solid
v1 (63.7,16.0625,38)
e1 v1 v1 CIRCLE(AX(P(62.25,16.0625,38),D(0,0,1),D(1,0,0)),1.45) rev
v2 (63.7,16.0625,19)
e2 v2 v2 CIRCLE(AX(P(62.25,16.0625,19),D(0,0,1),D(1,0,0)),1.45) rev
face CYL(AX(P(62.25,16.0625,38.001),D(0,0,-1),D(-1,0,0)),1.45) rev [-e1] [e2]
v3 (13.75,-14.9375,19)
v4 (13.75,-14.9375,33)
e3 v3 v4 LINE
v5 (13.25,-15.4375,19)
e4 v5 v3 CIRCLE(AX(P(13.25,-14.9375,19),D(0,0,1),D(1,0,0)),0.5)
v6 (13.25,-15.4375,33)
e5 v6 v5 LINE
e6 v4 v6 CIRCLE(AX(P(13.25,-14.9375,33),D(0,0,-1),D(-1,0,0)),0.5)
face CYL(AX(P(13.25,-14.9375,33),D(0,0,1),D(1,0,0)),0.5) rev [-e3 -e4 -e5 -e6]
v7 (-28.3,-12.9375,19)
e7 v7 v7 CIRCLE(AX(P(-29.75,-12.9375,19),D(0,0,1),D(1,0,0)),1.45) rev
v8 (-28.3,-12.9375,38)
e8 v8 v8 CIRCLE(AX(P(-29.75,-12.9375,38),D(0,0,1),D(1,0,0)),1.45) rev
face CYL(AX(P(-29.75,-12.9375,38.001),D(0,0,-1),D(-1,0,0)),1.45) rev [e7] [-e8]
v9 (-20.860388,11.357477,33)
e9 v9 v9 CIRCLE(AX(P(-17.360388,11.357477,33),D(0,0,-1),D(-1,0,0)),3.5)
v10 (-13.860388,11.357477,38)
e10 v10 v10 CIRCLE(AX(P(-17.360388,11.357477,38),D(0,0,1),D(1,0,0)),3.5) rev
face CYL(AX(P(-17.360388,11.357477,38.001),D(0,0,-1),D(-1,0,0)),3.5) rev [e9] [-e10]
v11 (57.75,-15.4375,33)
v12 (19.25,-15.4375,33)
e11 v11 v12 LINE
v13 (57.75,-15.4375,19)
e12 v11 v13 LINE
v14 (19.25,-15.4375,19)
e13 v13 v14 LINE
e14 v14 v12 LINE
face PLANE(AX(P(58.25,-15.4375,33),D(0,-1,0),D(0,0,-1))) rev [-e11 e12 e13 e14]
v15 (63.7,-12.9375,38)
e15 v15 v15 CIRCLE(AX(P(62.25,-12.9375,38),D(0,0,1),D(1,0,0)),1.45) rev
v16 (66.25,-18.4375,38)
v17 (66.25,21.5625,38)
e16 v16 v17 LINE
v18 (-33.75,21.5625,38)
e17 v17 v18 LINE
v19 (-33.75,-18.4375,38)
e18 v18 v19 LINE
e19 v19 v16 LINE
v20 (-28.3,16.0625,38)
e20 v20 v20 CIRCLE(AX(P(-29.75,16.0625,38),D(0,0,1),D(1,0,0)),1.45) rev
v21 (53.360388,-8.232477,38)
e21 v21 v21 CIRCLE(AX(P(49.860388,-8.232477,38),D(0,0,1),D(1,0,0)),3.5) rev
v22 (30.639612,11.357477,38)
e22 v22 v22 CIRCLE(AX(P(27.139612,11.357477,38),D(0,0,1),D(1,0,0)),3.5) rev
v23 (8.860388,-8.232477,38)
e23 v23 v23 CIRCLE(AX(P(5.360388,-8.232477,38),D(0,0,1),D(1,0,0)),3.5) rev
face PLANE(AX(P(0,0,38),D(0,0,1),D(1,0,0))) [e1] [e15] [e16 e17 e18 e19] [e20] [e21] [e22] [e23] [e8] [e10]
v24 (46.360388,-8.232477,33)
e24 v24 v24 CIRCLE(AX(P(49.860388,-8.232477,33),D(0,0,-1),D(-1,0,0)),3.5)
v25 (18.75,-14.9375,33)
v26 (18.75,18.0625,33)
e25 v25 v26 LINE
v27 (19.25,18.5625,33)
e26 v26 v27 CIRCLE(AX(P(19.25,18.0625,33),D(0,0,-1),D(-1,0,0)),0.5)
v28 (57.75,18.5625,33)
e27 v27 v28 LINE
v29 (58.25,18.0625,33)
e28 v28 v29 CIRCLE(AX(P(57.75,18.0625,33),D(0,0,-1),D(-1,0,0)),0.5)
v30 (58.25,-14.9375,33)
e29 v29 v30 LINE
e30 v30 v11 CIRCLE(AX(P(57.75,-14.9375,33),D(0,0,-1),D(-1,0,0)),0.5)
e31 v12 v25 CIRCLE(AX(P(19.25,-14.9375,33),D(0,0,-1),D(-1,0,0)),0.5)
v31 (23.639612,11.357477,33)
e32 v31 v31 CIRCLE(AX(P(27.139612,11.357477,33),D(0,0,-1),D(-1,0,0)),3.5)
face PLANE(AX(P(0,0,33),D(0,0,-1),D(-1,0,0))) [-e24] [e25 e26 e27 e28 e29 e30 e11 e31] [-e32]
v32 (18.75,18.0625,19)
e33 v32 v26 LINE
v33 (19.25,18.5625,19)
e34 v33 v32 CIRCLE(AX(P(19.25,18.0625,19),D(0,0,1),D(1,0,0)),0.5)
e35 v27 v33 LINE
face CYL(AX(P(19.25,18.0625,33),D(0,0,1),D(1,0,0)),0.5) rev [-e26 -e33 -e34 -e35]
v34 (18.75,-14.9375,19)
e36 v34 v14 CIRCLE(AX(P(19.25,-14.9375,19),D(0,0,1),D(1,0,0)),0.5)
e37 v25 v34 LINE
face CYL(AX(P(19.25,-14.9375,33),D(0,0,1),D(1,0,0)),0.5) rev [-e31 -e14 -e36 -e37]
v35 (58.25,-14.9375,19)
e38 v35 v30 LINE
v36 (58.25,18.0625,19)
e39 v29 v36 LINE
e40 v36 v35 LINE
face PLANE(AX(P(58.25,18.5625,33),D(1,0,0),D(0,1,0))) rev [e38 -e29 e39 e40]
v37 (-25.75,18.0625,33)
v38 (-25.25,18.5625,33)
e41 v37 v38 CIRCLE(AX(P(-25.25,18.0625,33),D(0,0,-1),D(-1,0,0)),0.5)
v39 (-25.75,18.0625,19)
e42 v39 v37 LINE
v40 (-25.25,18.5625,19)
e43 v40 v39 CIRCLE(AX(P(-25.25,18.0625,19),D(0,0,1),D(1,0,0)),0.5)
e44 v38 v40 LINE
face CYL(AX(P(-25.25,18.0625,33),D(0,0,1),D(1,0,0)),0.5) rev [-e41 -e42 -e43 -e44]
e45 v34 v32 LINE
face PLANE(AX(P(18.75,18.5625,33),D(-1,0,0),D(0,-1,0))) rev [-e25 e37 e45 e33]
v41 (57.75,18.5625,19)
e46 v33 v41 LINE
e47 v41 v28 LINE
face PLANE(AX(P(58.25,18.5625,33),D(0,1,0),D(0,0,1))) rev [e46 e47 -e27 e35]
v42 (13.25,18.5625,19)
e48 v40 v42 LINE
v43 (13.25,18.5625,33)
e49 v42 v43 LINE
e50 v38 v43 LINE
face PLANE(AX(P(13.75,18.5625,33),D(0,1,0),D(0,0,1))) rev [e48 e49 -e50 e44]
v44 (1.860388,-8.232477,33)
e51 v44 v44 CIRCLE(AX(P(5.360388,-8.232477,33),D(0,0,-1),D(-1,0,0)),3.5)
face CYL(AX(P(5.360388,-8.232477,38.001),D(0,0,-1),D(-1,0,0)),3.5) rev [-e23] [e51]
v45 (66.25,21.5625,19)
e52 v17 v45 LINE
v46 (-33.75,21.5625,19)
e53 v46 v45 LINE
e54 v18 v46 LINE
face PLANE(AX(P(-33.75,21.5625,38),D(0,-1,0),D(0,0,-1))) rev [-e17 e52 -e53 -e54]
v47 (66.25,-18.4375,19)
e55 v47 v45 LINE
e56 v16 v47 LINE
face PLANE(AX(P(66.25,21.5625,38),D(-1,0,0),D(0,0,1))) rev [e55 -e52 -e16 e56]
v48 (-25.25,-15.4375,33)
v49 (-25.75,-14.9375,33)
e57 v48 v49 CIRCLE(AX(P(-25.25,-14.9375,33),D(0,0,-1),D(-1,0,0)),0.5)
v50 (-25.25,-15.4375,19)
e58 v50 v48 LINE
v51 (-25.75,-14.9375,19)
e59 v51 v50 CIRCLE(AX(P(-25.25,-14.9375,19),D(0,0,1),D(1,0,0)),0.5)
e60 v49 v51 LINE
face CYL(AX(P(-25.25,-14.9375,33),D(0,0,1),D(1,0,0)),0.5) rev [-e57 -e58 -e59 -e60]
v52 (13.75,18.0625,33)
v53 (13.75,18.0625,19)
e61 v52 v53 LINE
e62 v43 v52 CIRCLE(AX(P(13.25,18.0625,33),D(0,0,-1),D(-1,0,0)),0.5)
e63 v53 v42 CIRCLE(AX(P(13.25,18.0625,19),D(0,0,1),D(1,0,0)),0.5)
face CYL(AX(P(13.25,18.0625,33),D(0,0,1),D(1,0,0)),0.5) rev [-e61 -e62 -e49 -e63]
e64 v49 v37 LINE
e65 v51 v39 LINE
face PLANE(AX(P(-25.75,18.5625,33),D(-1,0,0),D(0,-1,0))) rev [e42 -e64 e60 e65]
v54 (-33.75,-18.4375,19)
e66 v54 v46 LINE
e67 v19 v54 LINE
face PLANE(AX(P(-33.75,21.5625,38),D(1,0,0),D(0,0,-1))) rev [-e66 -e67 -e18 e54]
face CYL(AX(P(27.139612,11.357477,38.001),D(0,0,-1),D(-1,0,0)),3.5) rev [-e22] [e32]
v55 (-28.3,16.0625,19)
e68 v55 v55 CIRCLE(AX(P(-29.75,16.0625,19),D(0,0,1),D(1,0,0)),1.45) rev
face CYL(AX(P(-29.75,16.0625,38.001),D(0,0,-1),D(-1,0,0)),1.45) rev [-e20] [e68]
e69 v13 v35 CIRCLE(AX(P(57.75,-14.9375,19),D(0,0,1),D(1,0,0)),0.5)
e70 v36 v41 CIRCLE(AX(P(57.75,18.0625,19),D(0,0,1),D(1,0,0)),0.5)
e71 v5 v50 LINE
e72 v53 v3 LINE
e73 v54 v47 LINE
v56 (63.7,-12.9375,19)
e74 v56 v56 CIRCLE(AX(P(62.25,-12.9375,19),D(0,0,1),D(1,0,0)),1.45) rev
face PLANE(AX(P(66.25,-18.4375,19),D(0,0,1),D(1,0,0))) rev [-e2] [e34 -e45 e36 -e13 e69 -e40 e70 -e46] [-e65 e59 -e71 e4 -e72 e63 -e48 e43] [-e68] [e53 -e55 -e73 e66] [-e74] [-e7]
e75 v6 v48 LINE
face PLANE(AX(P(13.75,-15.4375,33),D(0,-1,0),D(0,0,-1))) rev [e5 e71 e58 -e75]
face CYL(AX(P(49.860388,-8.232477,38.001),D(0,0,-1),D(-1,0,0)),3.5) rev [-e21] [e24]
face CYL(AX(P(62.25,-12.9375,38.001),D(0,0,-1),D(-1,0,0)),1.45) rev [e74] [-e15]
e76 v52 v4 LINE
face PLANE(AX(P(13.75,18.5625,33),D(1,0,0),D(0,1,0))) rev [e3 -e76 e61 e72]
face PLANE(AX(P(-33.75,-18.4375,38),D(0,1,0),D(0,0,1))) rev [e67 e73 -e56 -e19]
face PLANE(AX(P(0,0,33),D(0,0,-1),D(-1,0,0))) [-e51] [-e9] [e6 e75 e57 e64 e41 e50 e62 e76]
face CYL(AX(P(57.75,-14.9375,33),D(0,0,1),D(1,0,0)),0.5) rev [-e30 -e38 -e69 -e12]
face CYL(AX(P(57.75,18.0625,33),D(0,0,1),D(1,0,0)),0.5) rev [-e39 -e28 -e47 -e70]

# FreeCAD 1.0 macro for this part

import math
import FreeCAD as App
import Part
import Sketcher
from FreeCAD import Vector
Q = App.Units.Quantity


def edges_at(feature, points):
    """Names of the edges that pass closest to the given points."""
    edges = feature.Shape.Edges
    near = lambda p: min(range(len(edges)), key=lambda i: edges[i].distToShape(Part.Vertex(*p))[0])
    return sorted({f"Edge{near(p) + 1}" for p in points})


def add_polygon(sketch, points):
    """Adds a closed chain of lines whose ends are joined by coincident constraints."""
    first, n = sketch.GeometryCount, len(points)
    for a, b in zip(points, points[1:] + points[:1]):
        sketch.addGeometry(Part.LineSegment(App.Vector(*a, 0), App.Vector(*b, 0)), False)
    for i in range(n):
        sketch.addConstraint(Sketcher.Constraint("Coincident", first + i, 2, first + (i + 1) % n, 1))

doc = App.newDocument("Part")
body = doc.addObject("PartDesign::Body", "Body")

# Sketch on XY plane
sketch1 = body.newObject("Sketcher::SketchObject", "Sketch")
sketch1.AttachmentSupport = (doc.getObject("XY_Plane"), [""])
sketch1.MapMode = "FlatFace"
add_polygon(sketch1, [(-33.75, 21.5625), (-33.75, -18.4375), (66.25, -18.4375), (66.25, 21.5625)])  # lines 0-3
sketch1.addConstraint([
    Sketcher.Constraint("Vertical", 0),
    Sketcher.Constraint("Horizontal", 1),
    Sketcher.Constraint("Vertical", 2),
    Sketcher.Constraint("Horizontal", 3),
    Sketcher.Constraint("DistanceX", 1, 1, 1, 2, Q("100 mm")),
    Sketcher.Constraint("DistanceY", 0, 2, 0, 1, Q("40 mm")),
    Sketcher.Constraint("DistanceX", 0, 2, -1, 1, Q("33.75 mm")),
    Sketcher.Constraint("DistanceY", 0, 2, -1, 1, Q("18.4375 mm")),
])
pad1 = body.newObject("PartDesign::Pad", "Pad")
pad1.Profile = sketch1
pad1.Length = 38

# Sketch on XY plane
sketch2 = body.newObject("Sketcher::SketchObject", "Sketch001")
sketch2.AttachmentSupport = (doc.getObject("XY_Plane"), [""])
sketch2.MapMode = "FlatFace"
sketch2.AttachmentOffset = App.Placement(Vector(0, 0, 12), App.Rotation())
add_polygon(sketch2, [(58.25, 18.5625), (58.25, -15.4375), (18.75, -15.4375), (18.75, 18.5625)])  # lines 0-3
add_polygon(sketch2, [(13.75, 18.5625), (13.75, -15.4375), (-25.75, -15.4375), (-25.75, 18.5625)])  # lines 4-7
sketch2.addConstraint([
    Sketcher.Constraint("Vertical", 0),
    Sketcher.Constraint("Horizontal", 1),
    Sketcher.Constraint("Vertical", 2),
    Sketcher.Constraint("Horizontal", 3),
    Sketcher.Constraint("Vertical", 4),
    Sketcher.Constraint("Horizontal", 5),
    Sketcher.Constraint("Vertical", 6),
    Sketcher.Constraint("Horizontal", 7),
    Sketcher.Constraint("Horizontal", 1, 2, 4, 2),
    Sketcher.Constraint("Horizontal", 3, 2, 6, 2),
    Sketcher.Constraint("Equal", 3, 5),
    Sketcher.Constraint("DistanceY", 0, 2, 0, 1, Q("34 mm")),
    Sketcher.Constraint("DistanceX", 1, 2, 1, 1, Q("39.5 mm")),
    Sketcher.Constraint("DistanceX", 4, 2, 1, 2, Q("5 mm")),
    Sketcher.Constraint("DistanceX", -1, 1, 0, 2, Q("58.25 mm")),
    Sketcher.Constraint("DistanceY", 0, 2, -1, 1, Q("15.4375 mm")),
])
pocket1 = body.newObject("PartDesign::Pocket", "Pocket")
pocket1.Profile = sketch2
pocket1.Length = 21
pocket1.Reversed = True

# Sketch on XY plane
sketch3 = body.newObject("Sketcher::SketchObject", "Sketch002")
sketch3.AttachmentSupport = (doc.getObject("XY_Plane"), [""])
sketch3.MapMode = "FlatFace"
sketch3.addGeometry([
    Part.ArcOfCircle(Part.Circle(Vector(14.794365, 41.486978, 0), Vector(0, 0, 1), 58.962482), math.radians(-132.550337), math.radians(-42.550337)),
    Part.ArcOfCircle(Part.Circle(Vector(-19.615092, 4.001815, 0), Vector(0, 0, 1), 8.078809), math.radians(47.449663), math.radians(227.449663)),
    Part.ArcOfCircle(Part.Circle(Vector(14.794365, 41.486978, 0), Vector(0, 0, 1), 42.804864), math.radians(-132.550337), math.radians(-42.550337)),
    Part.ArcOfCircle(Part.Circle(Vector(52.279528, 7.077521, 0), Vector(0, 0, 1), 8.078809), math.radians(-42.550337), math.radians(137.449663)),
], False)
sketch3.addConstraint([
    Sketcher.Constraint("Tangent", 0, 1, 1, 2),
    Sketcher.Constraint("Tangent", 1, 1, 2, 1),
    Sketcher.Constraint("Tangent", 2, 2, 3, 2),
    Sketcher.Constraint("Tangent", 3, 1, 0, 2),
    Sketcher.Constraint("Coincident", 2, 3, 0, 3),
    Sketcher.Constraint("Radius", 0, Q("58.962482 mm")),
    Sketcher.Constraint("Radius", 1, Q("8.078809 mm")),
    Sketcher.Constraint("DistanceX", 1, 1, 2, 2, Q("60.4799 mm")),
    Sketcher.Constraint("DistanceY", 1, 3, 2, 2, Q("8.5389 mm")),
    Sketcher.Constraint("DistanceY", -1, 1, 3, 3, Q("7.077521 mm")),
    Sketcher.Constraint("DistanceX", -1, 1, 0, 3, Q("14.794365 mm")),
])
pocket2 = body.newObject("PartDesign::Pocket", "Pocket001")
pocket2.Profile = sketch3
pocket2.Length = 9
pocket2.Reversed = True

# Sketch on XY plane
sketch4 = body.newObject("Sketcher::SketchObject", "Sketch003")
sketch4.AttachmentSupport = (doc.getObject("XY_Plane"), [""])
sketch4.MapMode = "FlatFace"
sketch4.addGeometry(Part.Circle(Vector(62.25, 16.0625, 0), Vector(0, 0, 1), 1.45), False)
sketch4.addConstraint([
    Sketcher.Constraint("Diameter", 0, Q("2.9 mm")),
    Sketcher.Constraint("DistanceX", -1, 1, 0, 3, Q("62.25 mm")),
    Sketcher.Constraint("DistanceY", -1, 1, 0, 3, Q("16.0625 mm")),
])
pocket3 = body.newObject("PartDesign::Pocket", "Pocket002")
pocket3.Profile = sketch4
pocket3.Type = "UpToFirst"
pocket3.Reversed = True

# Sketch on XY plane
sketch5 = body.newObject("Sketcher::SketchObject", "Sketch004")
sketch5.AttachmentSupport = (doc.getObject("XY_Plane"), [""])
sketch5.MapMode = "FlatFace"
sketch5.addGeometry(Part.Circle(Vector(62.25, -12.9375, 0), Vector(0, 0, 1), 1.45), False)
sketch5.addConstraint([
    Sketcher.Constraint("Diameter", 0, Q("2.9 mm")),
    Sketcher.Constraint("DistanceX", -1, 1, 0, 3, Q("62.25 mm")),
    Sketcher.Constraint("DistanceY", 0, 3, -1, 1, Q("12.9375 mm")),
])
pocket4 = body.newObject("PartDesign::Pocket", "Pocket003")
pocket4.Profile = sketch5
pocket4.Type = "UpToFirst"
pocket4.Reversed = True

# Sketch on XY plane
sketch6 = body.newObject("Sketcher::SketchObject", "Sketch005")
sketch6.AttachmentSupport = (doc.getObject("XY_Plane"), [""])
sketch6.MapMode = "FlatFace"
sketch6.addGeometry(Part.Circle(Vector(-29.75, 16.0625, 0), Vector(0, 0, 1), 1.45), False)
sketch6.addConstraint([
    Sketcher.Constraint("Diameter", 0, Q("2.9 mm")),
    Sketcher.Constraint("DistanceX", 0, 3, -1, 1, Q("29.75 mm")),
    Sketcher.Constraint("DistanceY", -1, 1, 0, 3, Q("16.0625 mm")),
])
pocket5 = body.newObject("PartDesign::Pocket", "Pocket004")
pocket5.Profile = sketch6
pocket5.Type = "UpToFirst"
pocket5.Reversed = True

# Sketch on XY plane
sketch7 = body.newObject("Sketcher::SketchObject", "Sketch006")
sketch7.AttachmentSupport = (doc.getObject("XY_Plane"), [""])
sketch7.MapMode = "FlatFace"
sketch7.addGeometry(Part.Circle(Vector(-29.75, -12.9375, 0), Vector(0, 0, 1), 1.45), False)
sketch7.addConstraint([
    Sketcher.Constraint("Diameter", 0, Q("2.9 mm")),
    Sketcher.Constraint("DistanceX", 0, 3, -1, 1, Q("29.75 mm")),
    Sketcher.Constraint("DistanceY", 0, 3, -1, 1, Q("12.9375 mm")),
])
pocket6 = body.newObject("PartDesign::Pocket", "Pocket005")
pocket6.Profile = sketch7
pocket6.Type = "UpToFirst"
pocket6.Reversed = True

# Sketch on XZ plane
sketch8 = body.newObject("Sketcher::SketchObject", "Sketch007")
sketch8.AttachmentSupport = (doc.getObject("XZ_Plane"), [""])
sketch8.MapMode = "FlatFace"
sketch8.AttachmentOffset = App.Placement(Vector(0, 0, -21.5625), App.Rotation())
add_polygon(sketch8, [(-33.75, 0), (-33.75, 19), (66.25, 19), (66.25, 0)])  # lines 0-3
sketch8.addConstraint([
    Sketcher.Constraint("Vertical", 0),
    Sketcher.Constraint("Horizontal", 1),
    Sketcher.Constraint("Vertical", 2),
    Sketcher.Constraint("Horizontal", 3),
    Sketcher.Constraint("PointOnObject", 2, 2, -1),
    Sketcher.Constraint("DistanceX", 1, 1, 1, 2, Q("100 mm")),
    Sketcher.Constraint("DistanceY", 0, 1, 0, 2, Q("19 mm")),
    Sketcher.Constraint("DistanceX", 0, 2, -1, 1, Q("33.75 mm")),
])
pocket7 = body.newObject("PartDesign::Pocket", "Pocket006")
pocket7.Profile = sketch8
pocket7.Type = "ThroughAll"
pocket7.Reversed = True
doc.recompute()

fillet = body.newObject("PartDesign::Fillet", "Fillet")
fillet.Base = (pocket7, edges_at(pocket7, [
    (58.25, 18.562, 26),
    (18.75, 18.562, 26),
    (18.75, -15.438, 26),
    (58.25, -15.438, 26),
    (13.75, 18.562, 26),
    (-25.75, 18.562, 26),
    (-25.75, -15.438, 26),
    (13.75, -15.438, 26),
]))
fillet.Radius = 0.5

# Sketch on XY plane
sketch9 = body.newObject("Sketcher::SketchObject", "Sketch008")
sketch9.AttachmentSupport = (doc.getObject("XY_Plane"), [""])
sketch9.MapMode = "FlatFace"
sketch9.AttachmentOffset = App.Placement(Vector(0, 0, 33), App.Rotation())
sketch9.addGeometry(Part.Circle(Vector(49.860388, -8.232477, 0), Vector(0, 0, 1), 3.5), False)
sketch9.addConstraint([
    Sketcher.Constraint("Diameter", 0, Q("7 mm")),
    Sketcher.Constraint("DistanceX", -1, 1, 0, 3, Q("49.860388 mm")),
    Sketcher.Constraint("DistanceY", 0, 3, -1, 1, Q("8.232477 mm")),
])
pocket8 = body.newObject("PartDesign::Pocket", "Pocket007")
pocket8.Profile = sketch9
pocket8.Type = "UpToFirst"
pocket8.Reversed = True

# Sketch on XY plane
sketch10 = body.newObject("Sketcher::SketchObject", "Sketch009")
sketch10.AttachmentSupport = (doc.getObject("XY_Plane"), [""])
sketch10.MapMode = "FlatFace"
sketch10.AttachmentOffset = App.Placement(Vector(0, 0, 33), App.Rotation())
sketch10.addGeometry(Part.Circle(Vector(27.139612, 11.357477, 0), Vector(0, 0, 1), 3.5), False)
sketch10.addConstraint([
    Sketcher.Constraint("Diameter", 0, Q("7 mm")),
    Sketcher.Constraint("DistanceX", -1, 1, 0, 3, Q("27.139612 mm")),
    Sketcher.Constraint("DistanceY", -1, 1, 0, 3, Q("11.357477 mm")),
])
pocket9 = body.newObject("PartDesign::Pocket", "Pocket008")
pocket9.Profile = sketch10
pocket9.Type = "UpToFirst"
pocket9.Reversed = True

# Sketch on XY plane
sketch11 = body.newObject("Sketcher::SketchObject", "Sketch010")
sketch11.AttachmentSupport = (doc.getObject("XY_Plane"), [""])
sketch11.MapMode = "FlatFace"
sketch11.AttachmentOffset = App.Placement(Vector(0, 0, 33), App.Rotation())
sketch11.addGeometry(Part.Circle(Vector(5.360388, -8.232477, 0), Vector(0, 0, 1), 3.5), False)
sketch11.addConstraint([
    Sketcher.Constraint("Diameter", 0, Q("7 mm")),
    Sketcher.Constraint("DistanceX", -1, 1, 0, 3, Q("5.360388 mm")),
    Sketcher.Constraint("DistanceY", 0, 3, -1, 1, Q("8.232477 mm")),
])
pocket10 = body.newObject("PartDesign::Pocket", "Pocket009")
pocket10.Profile = sketch11
pocket10.Type = "UpToFirst"
pocket10.Reversed = True

# Sketch on XY plane
sketch12 = body.newObject("Sketcher::SketchObject", "Sketch011")
sketch12.AttachmentSupport = (doc.getObject("XY_Plane"), [""])
sketch12.MapMode = "FlatFace"
sketch12.AttachmentOffset = App.Placement(Vector(0, 0, 33), App.Rotation())
sketch12.addGeometry(Part.Circle(Vector(-17.360388, 11.357477, 0), Vector(0, 0, 1), 3.5), False)
sketch12.addConstraint([
    Sketcher.Constraint("Diameter", 0, Q("7 mm")),
    Sketcher.Constraint("DistanceX", 0, 3, -1, 1, Q("17.360388 mm")),
    Sketcher.Constraint("DistanceY", -1, 1, 0, 3, Q("11.357477 mm")),
])
pocket11 = body.newObject("PartDesign::Pocket", "Pocket010")
pocket11.Profile = sketch12
pocket11.Type = "UpToFirst"
pocket11.Reversed = True

doc.recompute()
